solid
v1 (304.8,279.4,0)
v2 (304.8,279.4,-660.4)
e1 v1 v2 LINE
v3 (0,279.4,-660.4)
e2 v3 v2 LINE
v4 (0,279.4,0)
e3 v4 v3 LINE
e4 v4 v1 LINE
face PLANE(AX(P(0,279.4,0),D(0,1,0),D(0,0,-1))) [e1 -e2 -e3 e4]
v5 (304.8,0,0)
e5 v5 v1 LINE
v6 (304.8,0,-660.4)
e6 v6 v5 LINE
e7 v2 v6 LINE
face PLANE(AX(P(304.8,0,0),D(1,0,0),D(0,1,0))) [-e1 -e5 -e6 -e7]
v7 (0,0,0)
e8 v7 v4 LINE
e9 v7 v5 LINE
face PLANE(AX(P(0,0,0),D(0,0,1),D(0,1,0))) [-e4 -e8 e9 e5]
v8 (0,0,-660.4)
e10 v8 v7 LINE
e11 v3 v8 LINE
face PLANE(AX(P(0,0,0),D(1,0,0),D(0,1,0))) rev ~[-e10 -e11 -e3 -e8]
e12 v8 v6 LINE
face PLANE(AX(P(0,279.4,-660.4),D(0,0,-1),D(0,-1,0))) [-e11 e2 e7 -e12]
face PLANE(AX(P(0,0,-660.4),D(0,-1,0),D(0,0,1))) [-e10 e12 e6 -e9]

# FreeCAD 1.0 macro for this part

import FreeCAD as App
import Part
import Sketcher
from FreeCAD import Vector
Q = App.Units.Quantity

doc = App.newDocument("Part")
body = doc.addObject("PartDesign::Body", "Body")

# Sketch on YZ plane
sketch1 = body.newObject("Sketcher::SketchObject", "Sketch")
sketch1.AttachmentSupport = (doc.getObject("YZ_Plane"), [""])
sketch1.MapMode = "FlatFace"
sketch1.addGeometry(Part.LineSegment(Vector(279, 0, 0), Vector(0, 0, 0)), False)
sketch1.addGeometry(Part.LineSegment(Vector(0, 0, 0), Vector(0, -660, 0)), False)
sketch1.addGeometry(Part.LineSegment(Vector(0, -660, 0), Vector(279, -660, 0)), False)
sketch1.addGeometry(Part.LineSegment(Vector(279, -660, 0), Vector(279, 0, 0)), False)
sketch1.addConstraint(Sketcher.Constraint("Coincident", 0, 2, 1, 1))
sketch1.addConstraint(Sketcher.Constraint("Coincident", 1, 2, 2, 1))
sketch1.addConstraint(Sketcher.Constraint("Coincident", 2, 2, 3, 1))
sketch1.addConstraint(Sketcher.Constraint("Coincident", 3, 2, 0, 1))
sketch1.addConstraint(Sketcher.Constraint("Horizontal", 0))
sketch1.addConstraint(Sketcher.Constraint("Vertical", 1))
sketch1.addConstraint(Sketcher.Constraint("Horizontal", 2))
sketch1.addConstraint(Sketcher.Constraint("Vertical", 3))
sketch1.addConstraint(Sketcher.Constraint("Coincident", 0, 2, -1, 1))
sketch1.addConstraint(Sketcher.Constraint("DistanceX", 0, 2, 0, 1, Q("11 in")))
sketch1.addConstraint(Sketcher.Constraint("DistanceY", 1, 2, 1, 1, Q("26 in")))
pad1 = body.newObject("PartDesign::Pad", "Pad")
pad1.Profile = sketch1
pad1.Length = Q("12 in")

doc.recompute()
